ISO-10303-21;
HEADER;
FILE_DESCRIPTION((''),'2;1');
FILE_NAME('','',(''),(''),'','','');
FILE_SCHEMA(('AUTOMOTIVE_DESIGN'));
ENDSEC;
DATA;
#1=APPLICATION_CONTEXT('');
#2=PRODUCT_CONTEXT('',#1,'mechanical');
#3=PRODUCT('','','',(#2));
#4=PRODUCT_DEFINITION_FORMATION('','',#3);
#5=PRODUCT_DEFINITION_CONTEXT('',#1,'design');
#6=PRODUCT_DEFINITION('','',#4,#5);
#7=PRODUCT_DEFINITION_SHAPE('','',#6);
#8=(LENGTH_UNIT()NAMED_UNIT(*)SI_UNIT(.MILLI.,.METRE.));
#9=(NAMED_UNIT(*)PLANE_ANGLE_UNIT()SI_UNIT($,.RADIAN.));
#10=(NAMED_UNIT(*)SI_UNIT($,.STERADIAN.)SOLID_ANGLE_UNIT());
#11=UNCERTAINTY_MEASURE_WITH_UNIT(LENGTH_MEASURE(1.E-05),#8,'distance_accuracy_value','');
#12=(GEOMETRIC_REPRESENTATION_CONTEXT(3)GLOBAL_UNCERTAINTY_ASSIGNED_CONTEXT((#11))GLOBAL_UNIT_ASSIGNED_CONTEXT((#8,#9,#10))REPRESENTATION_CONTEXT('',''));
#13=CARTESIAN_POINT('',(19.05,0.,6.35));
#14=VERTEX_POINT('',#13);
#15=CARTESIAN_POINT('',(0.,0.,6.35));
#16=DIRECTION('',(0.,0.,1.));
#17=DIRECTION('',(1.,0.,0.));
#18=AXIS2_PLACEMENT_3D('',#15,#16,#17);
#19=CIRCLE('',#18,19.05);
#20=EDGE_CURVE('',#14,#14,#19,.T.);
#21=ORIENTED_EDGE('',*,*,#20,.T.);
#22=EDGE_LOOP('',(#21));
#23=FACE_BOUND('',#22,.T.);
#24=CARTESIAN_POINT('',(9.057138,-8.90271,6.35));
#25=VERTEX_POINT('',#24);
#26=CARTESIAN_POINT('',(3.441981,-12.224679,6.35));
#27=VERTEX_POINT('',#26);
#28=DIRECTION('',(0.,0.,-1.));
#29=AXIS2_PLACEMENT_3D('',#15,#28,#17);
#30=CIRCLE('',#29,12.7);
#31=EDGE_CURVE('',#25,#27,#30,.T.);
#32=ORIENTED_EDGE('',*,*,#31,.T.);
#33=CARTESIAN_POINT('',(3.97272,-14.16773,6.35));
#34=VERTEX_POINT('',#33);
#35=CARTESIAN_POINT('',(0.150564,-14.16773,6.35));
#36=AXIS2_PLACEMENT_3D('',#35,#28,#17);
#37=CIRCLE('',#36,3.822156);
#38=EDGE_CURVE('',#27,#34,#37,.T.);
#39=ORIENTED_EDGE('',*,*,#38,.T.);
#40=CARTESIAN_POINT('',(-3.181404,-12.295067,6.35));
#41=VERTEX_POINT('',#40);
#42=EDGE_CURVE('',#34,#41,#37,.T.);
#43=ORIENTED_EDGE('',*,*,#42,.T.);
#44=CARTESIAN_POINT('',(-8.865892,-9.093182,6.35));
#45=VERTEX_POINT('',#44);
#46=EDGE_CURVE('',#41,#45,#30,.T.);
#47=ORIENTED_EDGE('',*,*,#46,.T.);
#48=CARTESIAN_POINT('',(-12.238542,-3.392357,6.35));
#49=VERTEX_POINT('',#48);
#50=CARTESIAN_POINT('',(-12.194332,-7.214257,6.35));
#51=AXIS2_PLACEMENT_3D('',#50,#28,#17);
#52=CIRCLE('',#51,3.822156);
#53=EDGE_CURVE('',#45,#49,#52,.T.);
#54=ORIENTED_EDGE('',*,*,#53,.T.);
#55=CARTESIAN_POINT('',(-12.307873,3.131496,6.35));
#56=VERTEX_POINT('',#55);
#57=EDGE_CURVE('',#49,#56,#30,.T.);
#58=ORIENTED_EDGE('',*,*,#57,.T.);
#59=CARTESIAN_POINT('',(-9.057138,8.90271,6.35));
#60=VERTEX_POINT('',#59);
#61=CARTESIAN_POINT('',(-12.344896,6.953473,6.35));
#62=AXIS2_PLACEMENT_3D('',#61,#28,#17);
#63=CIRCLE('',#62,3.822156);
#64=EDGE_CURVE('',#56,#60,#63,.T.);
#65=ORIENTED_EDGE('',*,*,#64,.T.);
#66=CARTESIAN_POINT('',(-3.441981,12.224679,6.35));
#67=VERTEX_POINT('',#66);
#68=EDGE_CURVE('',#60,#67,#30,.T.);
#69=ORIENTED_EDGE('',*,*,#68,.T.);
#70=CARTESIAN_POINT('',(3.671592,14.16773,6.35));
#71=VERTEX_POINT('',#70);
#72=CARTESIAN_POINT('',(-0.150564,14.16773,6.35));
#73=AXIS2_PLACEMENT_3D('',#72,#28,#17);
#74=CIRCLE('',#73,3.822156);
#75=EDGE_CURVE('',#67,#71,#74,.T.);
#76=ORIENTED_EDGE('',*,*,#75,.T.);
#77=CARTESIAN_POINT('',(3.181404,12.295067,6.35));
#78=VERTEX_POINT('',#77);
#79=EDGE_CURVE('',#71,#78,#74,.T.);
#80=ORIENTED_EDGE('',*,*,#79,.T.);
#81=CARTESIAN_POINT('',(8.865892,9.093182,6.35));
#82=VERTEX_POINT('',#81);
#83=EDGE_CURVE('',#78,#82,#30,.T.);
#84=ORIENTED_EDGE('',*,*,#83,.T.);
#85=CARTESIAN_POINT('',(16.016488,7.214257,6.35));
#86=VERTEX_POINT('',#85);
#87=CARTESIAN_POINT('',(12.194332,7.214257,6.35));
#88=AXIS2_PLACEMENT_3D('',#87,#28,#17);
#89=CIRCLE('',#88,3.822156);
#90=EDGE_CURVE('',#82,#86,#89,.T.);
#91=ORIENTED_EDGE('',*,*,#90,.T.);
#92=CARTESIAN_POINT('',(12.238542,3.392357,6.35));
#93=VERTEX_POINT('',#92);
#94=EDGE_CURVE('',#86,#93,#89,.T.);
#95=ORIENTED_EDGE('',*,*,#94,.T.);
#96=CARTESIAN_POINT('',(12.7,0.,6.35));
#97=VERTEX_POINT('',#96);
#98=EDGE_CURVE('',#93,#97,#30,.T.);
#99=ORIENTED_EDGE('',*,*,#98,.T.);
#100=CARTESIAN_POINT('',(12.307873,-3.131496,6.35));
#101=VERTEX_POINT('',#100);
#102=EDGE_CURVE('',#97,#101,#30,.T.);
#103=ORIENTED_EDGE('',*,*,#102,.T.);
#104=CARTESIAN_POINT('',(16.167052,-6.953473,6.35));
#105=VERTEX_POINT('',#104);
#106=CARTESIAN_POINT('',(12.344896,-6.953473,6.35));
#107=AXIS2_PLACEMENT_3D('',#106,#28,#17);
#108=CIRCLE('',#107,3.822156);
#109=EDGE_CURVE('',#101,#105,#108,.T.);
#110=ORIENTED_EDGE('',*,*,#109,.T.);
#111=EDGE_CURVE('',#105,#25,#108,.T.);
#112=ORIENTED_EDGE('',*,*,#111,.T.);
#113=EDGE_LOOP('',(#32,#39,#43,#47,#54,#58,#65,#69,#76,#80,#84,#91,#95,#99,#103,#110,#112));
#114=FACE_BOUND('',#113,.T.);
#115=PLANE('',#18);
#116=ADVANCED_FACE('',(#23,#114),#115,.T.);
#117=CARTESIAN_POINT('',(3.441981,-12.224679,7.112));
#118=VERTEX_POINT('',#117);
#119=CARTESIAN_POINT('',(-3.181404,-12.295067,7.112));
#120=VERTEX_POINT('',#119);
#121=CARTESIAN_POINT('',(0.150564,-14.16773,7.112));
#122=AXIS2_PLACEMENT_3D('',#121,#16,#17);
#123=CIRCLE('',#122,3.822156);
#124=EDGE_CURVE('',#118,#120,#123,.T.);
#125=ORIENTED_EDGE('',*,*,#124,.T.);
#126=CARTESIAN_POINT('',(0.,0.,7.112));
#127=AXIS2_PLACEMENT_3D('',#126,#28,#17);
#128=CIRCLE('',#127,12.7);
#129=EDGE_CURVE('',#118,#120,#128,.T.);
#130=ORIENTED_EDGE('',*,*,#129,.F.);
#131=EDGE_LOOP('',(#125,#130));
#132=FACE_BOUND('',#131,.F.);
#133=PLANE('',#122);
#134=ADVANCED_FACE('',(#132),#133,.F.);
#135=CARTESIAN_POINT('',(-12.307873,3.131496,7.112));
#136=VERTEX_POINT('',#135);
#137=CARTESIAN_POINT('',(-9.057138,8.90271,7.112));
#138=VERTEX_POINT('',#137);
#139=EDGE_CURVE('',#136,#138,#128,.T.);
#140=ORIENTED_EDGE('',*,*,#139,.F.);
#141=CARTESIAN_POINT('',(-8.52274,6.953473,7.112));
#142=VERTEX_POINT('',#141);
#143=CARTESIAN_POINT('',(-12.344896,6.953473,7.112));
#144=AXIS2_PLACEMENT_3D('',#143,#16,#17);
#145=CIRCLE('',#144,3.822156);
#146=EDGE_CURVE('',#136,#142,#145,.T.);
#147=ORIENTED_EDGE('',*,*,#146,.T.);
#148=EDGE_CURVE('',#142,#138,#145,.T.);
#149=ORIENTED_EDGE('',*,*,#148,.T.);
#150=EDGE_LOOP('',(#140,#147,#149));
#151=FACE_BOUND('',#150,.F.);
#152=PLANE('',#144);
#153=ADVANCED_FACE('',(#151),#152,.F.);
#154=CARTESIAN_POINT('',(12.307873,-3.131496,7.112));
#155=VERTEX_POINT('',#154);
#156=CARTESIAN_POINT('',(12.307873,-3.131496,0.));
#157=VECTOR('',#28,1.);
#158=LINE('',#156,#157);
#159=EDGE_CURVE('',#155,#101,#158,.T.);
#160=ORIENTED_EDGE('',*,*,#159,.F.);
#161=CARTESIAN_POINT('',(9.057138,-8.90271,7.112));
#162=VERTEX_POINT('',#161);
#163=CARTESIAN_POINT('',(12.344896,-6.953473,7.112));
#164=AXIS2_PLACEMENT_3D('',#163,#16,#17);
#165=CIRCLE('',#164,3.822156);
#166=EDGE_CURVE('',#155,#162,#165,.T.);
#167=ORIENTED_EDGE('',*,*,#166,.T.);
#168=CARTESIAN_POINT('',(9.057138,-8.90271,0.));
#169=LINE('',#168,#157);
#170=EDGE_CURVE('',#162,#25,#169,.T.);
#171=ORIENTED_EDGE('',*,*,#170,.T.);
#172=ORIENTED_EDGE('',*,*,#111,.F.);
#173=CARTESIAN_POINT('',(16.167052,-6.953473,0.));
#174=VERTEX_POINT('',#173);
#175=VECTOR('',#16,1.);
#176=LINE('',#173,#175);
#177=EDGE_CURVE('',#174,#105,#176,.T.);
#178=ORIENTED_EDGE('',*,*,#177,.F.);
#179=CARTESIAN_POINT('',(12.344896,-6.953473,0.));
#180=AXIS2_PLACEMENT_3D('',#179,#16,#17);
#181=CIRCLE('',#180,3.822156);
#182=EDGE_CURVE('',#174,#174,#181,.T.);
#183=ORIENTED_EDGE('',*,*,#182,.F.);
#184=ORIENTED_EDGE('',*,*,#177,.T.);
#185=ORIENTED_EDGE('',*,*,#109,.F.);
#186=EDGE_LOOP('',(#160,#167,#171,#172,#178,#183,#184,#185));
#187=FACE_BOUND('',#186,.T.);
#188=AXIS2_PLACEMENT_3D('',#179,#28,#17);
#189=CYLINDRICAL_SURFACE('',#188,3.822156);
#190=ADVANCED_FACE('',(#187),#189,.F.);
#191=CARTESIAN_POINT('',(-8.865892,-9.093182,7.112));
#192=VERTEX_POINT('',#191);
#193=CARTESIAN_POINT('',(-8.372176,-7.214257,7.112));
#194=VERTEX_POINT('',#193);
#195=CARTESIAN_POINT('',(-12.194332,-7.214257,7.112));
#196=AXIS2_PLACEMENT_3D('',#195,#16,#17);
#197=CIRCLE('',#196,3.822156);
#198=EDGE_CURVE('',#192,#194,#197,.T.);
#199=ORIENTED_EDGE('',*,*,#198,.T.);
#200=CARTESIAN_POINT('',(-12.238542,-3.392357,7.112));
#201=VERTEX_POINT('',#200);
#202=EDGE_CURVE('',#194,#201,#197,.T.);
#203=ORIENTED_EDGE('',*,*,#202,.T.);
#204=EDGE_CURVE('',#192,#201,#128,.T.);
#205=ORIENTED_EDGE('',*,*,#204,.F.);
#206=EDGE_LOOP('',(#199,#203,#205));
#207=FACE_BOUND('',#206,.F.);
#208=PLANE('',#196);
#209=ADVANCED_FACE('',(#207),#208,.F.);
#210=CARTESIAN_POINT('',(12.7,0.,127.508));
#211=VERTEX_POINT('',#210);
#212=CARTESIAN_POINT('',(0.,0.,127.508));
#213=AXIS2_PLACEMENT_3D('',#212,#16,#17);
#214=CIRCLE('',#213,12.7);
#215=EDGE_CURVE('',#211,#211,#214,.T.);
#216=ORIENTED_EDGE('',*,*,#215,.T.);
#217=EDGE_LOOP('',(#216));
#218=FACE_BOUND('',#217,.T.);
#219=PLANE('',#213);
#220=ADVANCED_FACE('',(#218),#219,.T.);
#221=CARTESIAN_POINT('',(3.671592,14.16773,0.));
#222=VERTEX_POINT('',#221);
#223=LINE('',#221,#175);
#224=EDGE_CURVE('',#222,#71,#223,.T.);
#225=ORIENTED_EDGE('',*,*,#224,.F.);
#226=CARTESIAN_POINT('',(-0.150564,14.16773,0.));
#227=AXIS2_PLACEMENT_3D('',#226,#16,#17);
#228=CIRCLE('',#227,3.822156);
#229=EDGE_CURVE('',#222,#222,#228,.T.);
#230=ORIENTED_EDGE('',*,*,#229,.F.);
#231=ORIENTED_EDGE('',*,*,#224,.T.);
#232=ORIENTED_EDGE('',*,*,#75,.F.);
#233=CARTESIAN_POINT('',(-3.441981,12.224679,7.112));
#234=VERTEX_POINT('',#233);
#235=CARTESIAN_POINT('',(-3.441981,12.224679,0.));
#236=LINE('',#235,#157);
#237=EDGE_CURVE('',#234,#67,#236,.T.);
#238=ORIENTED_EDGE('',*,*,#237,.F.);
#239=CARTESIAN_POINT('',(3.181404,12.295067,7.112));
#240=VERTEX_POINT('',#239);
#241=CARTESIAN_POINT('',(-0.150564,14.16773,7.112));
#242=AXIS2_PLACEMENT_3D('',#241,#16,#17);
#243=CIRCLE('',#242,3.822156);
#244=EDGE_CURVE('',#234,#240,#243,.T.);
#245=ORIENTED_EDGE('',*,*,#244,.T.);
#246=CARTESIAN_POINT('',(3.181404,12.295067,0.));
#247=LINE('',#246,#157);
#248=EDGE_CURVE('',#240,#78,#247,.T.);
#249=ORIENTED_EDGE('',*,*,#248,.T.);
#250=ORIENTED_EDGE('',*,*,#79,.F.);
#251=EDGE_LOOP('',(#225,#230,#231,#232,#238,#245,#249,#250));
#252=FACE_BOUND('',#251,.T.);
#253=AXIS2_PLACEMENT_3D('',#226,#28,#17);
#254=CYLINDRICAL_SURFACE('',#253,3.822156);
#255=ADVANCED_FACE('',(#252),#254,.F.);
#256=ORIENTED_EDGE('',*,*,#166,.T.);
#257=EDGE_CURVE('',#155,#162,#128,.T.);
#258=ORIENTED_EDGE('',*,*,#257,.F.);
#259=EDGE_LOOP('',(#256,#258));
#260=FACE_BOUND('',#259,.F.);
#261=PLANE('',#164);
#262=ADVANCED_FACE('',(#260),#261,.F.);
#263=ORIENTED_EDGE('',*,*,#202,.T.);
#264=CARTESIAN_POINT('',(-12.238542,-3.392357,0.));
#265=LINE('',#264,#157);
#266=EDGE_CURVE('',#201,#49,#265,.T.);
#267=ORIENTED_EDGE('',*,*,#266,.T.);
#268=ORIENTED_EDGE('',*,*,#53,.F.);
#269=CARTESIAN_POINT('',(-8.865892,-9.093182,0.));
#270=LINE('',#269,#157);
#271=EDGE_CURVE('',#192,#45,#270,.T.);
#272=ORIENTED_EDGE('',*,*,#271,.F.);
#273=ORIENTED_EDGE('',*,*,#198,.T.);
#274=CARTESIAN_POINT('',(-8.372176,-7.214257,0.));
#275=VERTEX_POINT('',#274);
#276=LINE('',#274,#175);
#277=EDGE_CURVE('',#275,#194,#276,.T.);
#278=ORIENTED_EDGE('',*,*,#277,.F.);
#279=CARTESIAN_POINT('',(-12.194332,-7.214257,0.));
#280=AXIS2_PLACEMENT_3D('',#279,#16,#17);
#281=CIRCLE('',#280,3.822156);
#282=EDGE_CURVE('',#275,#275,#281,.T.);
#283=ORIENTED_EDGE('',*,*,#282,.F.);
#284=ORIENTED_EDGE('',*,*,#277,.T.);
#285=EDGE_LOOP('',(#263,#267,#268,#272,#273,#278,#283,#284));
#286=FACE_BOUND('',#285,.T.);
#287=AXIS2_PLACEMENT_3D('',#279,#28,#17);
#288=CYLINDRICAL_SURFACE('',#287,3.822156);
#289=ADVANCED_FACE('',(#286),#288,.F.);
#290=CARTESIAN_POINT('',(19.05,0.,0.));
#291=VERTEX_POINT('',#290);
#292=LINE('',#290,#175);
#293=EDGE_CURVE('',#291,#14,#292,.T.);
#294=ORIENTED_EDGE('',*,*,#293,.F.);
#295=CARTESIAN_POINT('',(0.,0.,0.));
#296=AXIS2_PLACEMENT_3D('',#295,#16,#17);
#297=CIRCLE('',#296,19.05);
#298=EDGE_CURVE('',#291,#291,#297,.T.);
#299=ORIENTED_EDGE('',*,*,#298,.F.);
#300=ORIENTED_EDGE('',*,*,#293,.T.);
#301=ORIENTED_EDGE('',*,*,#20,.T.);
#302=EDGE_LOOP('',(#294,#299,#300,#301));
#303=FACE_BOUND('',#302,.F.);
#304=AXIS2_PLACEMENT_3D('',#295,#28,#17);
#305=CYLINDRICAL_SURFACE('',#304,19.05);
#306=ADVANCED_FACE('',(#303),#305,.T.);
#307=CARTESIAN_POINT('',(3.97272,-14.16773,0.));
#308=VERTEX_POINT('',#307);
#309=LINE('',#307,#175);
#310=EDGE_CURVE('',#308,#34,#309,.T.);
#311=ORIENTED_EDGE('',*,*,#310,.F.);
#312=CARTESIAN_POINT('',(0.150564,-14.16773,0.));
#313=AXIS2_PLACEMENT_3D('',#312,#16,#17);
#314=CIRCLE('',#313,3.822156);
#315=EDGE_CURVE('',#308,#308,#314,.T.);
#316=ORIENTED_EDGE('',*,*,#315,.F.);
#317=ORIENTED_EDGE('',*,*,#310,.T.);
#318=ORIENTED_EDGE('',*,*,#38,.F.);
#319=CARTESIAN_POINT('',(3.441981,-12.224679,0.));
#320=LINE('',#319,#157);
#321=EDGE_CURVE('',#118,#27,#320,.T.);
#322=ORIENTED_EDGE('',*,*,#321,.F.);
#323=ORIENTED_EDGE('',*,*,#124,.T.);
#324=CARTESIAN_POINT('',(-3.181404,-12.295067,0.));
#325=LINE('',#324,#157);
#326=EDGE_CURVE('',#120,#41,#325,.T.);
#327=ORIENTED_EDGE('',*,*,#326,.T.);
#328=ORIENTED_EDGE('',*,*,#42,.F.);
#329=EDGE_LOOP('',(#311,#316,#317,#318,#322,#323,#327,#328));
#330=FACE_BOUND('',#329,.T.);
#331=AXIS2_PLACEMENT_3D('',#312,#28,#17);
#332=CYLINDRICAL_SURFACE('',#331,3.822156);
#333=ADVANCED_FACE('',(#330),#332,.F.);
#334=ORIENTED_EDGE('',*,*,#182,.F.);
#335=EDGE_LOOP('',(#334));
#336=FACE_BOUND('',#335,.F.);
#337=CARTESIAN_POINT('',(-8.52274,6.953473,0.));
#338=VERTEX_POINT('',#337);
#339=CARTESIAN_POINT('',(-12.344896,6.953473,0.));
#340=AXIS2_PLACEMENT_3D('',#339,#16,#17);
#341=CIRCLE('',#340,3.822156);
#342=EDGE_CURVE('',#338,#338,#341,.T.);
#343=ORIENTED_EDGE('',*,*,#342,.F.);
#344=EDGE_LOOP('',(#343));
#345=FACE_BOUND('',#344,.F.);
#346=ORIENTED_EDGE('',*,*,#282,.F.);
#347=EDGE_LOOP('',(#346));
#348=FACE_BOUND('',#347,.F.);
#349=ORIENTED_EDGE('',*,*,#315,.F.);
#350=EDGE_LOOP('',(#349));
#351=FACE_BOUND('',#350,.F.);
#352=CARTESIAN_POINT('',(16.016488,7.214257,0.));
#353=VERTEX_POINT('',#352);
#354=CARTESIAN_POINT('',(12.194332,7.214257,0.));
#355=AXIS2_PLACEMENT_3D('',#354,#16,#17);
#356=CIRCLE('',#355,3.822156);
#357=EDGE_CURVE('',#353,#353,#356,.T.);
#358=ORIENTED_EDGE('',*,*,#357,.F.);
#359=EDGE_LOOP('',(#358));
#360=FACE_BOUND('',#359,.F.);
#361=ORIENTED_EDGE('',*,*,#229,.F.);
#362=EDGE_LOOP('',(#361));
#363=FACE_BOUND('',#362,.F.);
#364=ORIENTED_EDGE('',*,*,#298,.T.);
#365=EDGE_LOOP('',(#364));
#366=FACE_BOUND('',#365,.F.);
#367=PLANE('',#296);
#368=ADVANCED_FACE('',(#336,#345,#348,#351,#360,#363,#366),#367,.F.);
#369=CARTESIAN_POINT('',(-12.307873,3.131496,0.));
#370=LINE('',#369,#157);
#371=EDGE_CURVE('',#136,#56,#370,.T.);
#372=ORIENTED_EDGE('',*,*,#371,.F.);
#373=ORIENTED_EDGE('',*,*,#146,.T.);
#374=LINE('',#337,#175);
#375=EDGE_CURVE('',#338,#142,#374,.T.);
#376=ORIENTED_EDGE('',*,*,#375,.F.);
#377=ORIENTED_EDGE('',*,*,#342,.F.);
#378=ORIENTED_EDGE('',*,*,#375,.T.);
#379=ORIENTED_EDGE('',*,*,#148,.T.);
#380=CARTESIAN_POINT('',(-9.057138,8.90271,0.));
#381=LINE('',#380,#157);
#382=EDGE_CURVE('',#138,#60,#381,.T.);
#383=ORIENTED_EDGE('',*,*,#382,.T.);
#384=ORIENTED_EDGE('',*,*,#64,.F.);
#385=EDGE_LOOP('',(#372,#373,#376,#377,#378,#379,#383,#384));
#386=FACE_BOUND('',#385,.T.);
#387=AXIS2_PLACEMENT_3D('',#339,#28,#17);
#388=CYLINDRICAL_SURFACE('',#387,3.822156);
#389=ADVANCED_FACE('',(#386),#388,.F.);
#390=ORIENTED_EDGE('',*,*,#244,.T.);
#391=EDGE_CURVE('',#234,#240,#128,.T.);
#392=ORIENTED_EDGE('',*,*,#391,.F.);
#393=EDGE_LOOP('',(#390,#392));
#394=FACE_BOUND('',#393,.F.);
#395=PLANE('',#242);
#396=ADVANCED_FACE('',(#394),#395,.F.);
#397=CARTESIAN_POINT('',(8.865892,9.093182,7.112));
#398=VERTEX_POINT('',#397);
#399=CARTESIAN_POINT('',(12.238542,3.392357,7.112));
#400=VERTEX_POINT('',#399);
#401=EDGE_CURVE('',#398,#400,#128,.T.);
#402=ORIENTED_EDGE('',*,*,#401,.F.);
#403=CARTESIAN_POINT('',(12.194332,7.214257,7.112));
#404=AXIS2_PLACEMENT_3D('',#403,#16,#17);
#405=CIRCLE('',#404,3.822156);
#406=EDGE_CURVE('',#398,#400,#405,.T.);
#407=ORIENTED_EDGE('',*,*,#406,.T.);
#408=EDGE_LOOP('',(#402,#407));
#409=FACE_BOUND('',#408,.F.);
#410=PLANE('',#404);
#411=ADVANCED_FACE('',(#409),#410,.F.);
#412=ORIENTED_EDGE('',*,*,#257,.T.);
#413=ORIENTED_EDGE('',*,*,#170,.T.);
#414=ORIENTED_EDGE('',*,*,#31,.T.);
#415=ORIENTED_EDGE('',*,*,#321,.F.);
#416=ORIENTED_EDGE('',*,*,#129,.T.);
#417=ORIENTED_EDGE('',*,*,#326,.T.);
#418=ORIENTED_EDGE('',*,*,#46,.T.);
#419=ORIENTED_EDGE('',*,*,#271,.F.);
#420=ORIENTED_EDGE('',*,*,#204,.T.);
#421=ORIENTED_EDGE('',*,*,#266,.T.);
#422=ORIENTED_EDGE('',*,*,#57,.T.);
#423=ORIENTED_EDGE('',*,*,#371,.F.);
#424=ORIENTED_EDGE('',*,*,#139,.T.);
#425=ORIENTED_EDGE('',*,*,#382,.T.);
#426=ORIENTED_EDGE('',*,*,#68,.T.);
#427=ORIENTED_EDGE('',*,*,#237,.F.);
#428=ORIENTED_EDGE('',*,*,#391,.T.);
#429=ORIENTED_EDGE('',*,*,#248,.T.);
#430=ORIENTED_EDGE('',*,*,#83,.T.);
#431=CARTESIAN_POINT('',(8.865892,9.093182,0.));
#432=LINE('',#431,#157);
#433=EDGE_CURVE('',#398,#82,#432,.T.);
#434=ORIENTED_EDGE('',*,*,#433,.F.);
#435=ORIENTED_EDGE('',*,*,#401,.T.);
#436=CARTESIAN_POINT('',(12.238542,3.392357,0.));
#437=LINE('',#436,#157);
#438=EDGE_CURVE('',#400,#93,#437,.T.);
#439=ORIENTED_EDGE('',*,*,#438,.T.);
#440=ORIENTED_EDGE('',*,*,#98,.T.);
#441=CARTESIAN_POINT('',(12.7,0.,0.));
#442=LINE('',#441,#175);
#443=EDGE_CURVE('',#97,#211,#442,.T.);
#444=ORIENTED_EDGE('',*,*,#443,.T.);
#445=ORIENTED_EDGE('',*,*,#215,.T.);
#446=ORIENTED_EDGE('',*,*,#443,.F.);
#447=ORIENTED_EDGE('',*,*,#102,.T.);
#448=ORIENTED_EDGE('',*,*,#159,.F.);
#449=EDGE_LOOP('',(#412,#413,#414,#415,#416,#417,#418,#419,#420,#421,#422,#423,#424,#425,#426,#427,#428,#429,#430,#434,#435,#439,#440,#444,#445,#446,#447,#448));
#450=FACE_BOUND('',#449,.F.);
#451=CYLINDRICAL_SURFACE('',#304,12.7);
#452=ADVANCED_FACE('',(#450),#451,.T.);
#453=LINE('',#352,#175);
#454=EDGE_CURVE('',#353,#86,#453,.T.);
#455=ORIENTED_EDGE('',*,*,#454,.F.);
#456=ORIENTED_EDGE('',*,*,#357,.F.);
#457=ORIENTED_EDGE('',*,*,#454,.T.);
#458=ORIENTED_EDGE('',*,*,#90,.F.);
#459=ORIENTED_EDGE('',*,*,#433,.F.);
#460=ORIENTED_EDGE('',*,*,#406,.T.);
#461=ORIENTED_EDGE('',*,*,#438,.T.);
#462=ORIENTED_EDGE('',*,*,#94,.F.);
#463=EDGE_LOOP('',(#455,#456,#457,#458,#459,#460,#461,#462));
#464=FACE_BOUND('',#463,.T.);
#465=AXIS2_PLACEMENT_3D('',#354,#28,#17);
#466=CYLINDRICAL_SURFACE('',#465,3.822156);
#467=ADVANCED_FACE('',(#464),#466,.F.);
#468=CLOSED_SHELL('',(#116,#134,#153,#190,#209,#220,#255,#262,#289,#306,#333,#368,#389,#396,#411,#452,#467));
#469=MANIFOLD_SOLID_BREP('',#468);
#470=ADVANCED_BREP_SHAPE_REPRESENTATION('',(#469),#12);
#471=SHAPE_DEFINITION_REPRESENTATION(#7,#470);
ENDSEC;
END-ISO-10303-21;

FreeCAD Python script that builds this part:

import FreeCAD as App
import Part
import Sketcher

V = App.Vector
Q = App.Units.Quantity

doc = App.newDocument("Part")
body = doc.addObject("PartDesign::Body", "Body")

sketch1 = body.newObject("Sketcher::SketchObject", "Sketch")
sketch1.AttachmentSupport = (doc.getObject("XY_Plane"), [""])
sketch1.MapMode = "FlatFace"
sketch1.addGeometry(Part.Circle(V(0, 0, 0), V(0, 0, 1), 13), False)
sketch1.addConstraint([
    Sketcher.Constraint("Coincident", 0, 3, -1, 1),
    Sketcher.Constraint("Diameter", 0, Q("1 in")),
])
pad1 = body.newObject("PartDesign::Pad", "Pad")
pad1.Profile = sketch1
pad1.Length = Q("5.02 in")

sketch2 = body.newObject("Sketcher::SketchObject", "Sketch001")
sketch2.AttachmentSupport = (doc.getObject("XY_Plane"), [""])
sketch2.MapMode = "FlatFace"
sketch2.addGeometry(Part.Circle(V(0, 0, 0), V(0, 0, 1), 19), False)
sketch2.addConstraint([
    Sketcher.Constraint("Coincident", 0, 3, -1, 1),
    Sketcher.Constraint("Diameter", 0, Q("1.5 in")),
])
pad2 = body.newObject("PartDesign::Pad", "Pad001")
pad2.Profile = sketch2
pad2.Length = Q("0.25 in")

sketch3 = body.newObject("Sketcher::SketchObject", "Sketch002")
sketch3.AttachmentSupport = (doc.getObject("XY_Plane"), [""])
sketch3.MapMode = "FlatFace"
sketch3.addGeometry([
    Part.Circle(V(12.2, 7.2, 0), V(0, 0, 1), 3.8),
    Part.Circle(V(-0.2, 14.2, 0), V(0, 0, 1), 3.8),
    Part.Circle(V(-12.3, 7, 0), V(0, 0, 1), 3.8),
    Part.Circle(V(-12.2, -7.2, 0), V(0, 0, 1), 3.8),
    Part.Circle(V(0.2, -14.2, 0), V(0, 0, 1), 3.8),
    Part.Circle(V(12.3, -7, 0), V(0, 0, 1), 3.8),
], False)
sketch3.addConstraint([
    Sketcher.Constraint("Equal", 0, 1),
    Sketcher.Constraint("Equal", 1, 2),
    Sketcher.Constraint("Equal", 2, 3),
    Sketcher.Constraint("Equal", 3, 4),
    Sketcher.Constraint("Equal", 4, 5),
    Sketcher.Constraint("Symmetric", 0, 3, 3, 3, -1, 1),
    Sketcher.Constraint("Symmetric", 1, 3, 4, 3, -1, 1),
    Sketcher.Constraint("Symmetric", 2, 3, 5, 3, -1, 1),
    Sketcher.Constraint("Diameter", 0, 7.644312),
    Sketcher.Constraint("DistanceX", -1, 1, 0, 3, 12.194332),
    Sketcher.Constraint("DistanceY", -1, 1, 1, 3, 14.16773),
    Sketcher.Constraint("DistanceX", 2, 3, 0, 3, 24.539228),
    Sketcher.Constraint("DistanceY", 3, 3, 2, 3, 14.16773),
    Sketcher.Constraint("DistanceX", 2, 3, 4, 3, 12.49546),
    Sketcher.Constraint("DistanceY", -1, 1, 0, 3, 7.214257),
])
pocket1 = body.newObject("PartDesign::Pocket", "Pocket")
pocket1.Profile = sketch3
pocket1.Length = Q("0.28 in")
pocket1.Reversed = True

doc.recompute()
